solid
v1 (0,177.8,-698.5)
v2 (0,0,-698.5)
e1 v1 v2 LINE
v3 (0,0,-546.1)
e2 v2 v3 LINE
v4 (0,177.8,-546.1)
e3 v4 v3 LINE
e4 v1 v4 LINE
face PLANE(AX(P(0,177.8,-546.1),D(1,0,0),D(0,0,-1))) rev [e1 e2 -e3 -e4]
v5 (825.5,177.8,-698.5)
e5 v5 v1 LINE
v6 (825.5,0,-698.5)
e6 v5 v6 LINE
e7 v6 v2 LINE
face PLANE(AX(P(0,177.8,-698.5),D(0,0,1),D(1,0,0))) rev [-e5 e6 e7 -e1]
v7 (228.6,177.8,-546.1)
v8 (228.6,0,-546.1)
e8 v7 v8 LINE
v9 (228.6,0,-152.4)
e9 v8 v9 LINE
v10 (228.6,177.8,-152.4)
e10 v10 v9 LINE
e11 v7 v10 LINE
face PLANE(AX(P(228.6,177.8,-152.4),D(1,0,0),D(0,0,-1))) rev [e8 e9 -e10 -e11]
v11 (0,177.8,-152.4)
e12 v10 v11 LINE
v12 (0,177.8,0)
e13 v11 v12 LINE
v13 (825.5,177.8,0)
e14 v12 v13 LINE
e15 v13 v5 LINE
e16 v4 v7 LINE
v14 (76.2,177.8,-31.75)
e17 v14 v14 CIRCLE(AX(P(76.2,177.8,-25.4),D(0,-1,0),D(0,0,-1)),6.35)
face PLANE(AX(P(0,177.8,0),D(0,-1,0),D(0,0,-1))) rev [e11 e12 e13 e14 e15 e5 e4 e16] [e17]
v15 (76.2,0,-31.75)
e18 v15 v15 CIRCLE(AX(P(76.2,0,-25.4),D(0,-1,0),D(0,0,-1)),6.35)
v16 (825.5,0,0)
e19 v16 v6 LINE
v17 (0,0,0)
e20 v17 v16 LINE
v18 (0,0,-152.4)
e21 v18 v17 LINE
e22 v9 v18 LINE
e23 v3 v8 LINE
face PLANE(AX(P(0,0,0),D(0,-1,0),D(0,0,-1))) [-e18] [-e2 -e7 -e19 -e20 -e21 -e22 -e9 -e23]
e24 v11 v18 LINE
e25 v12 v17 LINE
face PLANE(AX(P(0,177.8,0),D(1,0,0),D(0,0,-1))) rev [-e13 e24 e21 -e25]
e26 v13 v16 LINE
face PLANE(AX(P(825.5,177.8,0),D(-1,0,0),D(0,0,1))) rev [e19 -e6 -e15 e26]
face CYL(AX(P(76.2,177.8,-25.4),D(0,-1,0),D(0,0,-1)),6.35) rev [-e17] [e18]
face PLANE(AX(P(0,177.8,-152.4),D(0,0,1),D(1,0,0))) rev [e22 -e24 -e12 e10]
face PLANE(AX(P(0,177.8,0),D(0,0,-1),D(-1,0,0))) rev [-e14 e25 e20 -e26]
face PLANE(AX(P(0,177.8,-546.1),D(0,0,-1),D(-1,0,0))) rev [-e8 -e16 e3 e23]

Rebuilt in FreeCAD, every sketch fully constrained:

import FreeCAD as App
import Part
import Sketcher
Q = App.Units.Quantity


def add_polygon(sketch, points):
    """Adds a closed chain of lines whose ends are joined by coincident constraints."""
    first, n = sketch.GeometryCount, len(points)
    for a, b in zip(points, points[1:] + points[:1]):
        sketch.addGeometry(Part.LineSegment(App.Vector(*a, 0), App.Vector(*b, 0)), False)
    for i in range(n):
        sketch.addConstraint(Sketcher.Constraint("Coincident", first + i, 2, first + (i + 1) % n, 1))

doc = App.newDocument("Part")
params = doc.addObject("Spreadsheet::Sheet", "Params")
for row, (alias, value) in enumerate([
    ("sketch1_width", "9 in"),
    ("sketch1_height", "6 in"),
    ("sketch1_width2", "32.5 in"),
    ("sketch1_height2", "15.5 in"),
    ("pad1_length", "7 in"),
    ("sketch2_diameter", "0.5 in"),
], start=1):
    params.set(f"A{row}", alias)
    params.set(f"B{row}", "=" + value)
    params.setAlias(f"B{row}", alias)

body = doc.addObject("PartDesign::Body", "Body")

sketch1 = body.newObject("Sketcher::SketchObject", "Sketch")
sketch1.AttachmentSupport = (doc.getObject("XZ_Plane"), [""])
sketch1.MapMode = "FlatFace"
add_polygon(sketch1, [(0, -698), (0, -546), (229, -546), (229, -152), (0, -152), (0, 0), (826, 0), (826, -698)])
sketch1.addConstraint([
    Sketcher.Constraint("Vertical", 0),
    Sketcher.Constraint("Horizontal", 1),
    Sketcher.Constraint("Vertical", 2),
    Sketcher.Constraint("Horizontal", 3),
    Sketcher.Constraint("Vertical", 4),
    Sketcher.Constraint("Horizontal", 5),
    Sketcher.Constraint("Vertical", 6),
    Sketcher.Constraint("Horizontal", 7),
    Sketcher.Constraint("Coincident", 4, 2, -1, 1),
    Sketcher.Constraint("PointOnObject", 0, 2, -2),
    Sketcher.Constraint("Equal", 0, 4),
    Sketcher.Constraint("DistanceX", 1, 1, 1, 2, Q("9 in")),
    Sketcher.Constraint("DistanceY", 0, 1, 0, 2, Q("6 in")),
    Sketcher.Constraint("DistanceX", 5, 1, 5, 2, Q("32.5 in")),
    Sketcher.Constraint("DistanceY", 2, 1, 2, 2, Q("15.5 in")),
])
sketch1.setExpression("Constraints[19]", "Params.sketch1_width")
sketch1.setExpression("Constraints[20]", "Params.sketch1_height")
sketch1.setExpression("Constraints[21]", "Params.sketch1_width2")
sketch1.setExpression("Constraints[22]", "Params.sketch1_height2")
pad1 = body.newObject("PartDesign::Pad", "Pad")
pad1.Profile = sketch1
pad1.setExpression("Length", "Params.pad1_length")
pad1.Reversed = True

sketch2 = body.newObject("Sketcher::SketchObject", "Sketch001")
sketch2.AttachmentSupport = (doc.getObject("XZ_Plane"), [""])
sketch2.MapMode = "FlatFace"
sketch2.addGeometry(Part.Circle(App.Vector(76, -25, 0), App.Vector(0, 0, 1), 6), False)
sketch2.addConstraint([
    Sketcher.Constraint("Diameter", 0, Q("0.5 in")),
    Sketcher.Constraint("DistanceX", -1, 1, 0, 3, Q("3 in")),
    Sketcher.Constraint("DistanceY", 0, 3, -1, 1, Q("1 in")),
])
sketch2.setExpression("Constraints[0]", "Params.sketch2_diameter")
pocket1 = body.newObject("PartDesign::Pocket", "Pocket")
pocket1.Profile = sketch2
pocket1.Type = "ThroughAll"

doc.recompute()
